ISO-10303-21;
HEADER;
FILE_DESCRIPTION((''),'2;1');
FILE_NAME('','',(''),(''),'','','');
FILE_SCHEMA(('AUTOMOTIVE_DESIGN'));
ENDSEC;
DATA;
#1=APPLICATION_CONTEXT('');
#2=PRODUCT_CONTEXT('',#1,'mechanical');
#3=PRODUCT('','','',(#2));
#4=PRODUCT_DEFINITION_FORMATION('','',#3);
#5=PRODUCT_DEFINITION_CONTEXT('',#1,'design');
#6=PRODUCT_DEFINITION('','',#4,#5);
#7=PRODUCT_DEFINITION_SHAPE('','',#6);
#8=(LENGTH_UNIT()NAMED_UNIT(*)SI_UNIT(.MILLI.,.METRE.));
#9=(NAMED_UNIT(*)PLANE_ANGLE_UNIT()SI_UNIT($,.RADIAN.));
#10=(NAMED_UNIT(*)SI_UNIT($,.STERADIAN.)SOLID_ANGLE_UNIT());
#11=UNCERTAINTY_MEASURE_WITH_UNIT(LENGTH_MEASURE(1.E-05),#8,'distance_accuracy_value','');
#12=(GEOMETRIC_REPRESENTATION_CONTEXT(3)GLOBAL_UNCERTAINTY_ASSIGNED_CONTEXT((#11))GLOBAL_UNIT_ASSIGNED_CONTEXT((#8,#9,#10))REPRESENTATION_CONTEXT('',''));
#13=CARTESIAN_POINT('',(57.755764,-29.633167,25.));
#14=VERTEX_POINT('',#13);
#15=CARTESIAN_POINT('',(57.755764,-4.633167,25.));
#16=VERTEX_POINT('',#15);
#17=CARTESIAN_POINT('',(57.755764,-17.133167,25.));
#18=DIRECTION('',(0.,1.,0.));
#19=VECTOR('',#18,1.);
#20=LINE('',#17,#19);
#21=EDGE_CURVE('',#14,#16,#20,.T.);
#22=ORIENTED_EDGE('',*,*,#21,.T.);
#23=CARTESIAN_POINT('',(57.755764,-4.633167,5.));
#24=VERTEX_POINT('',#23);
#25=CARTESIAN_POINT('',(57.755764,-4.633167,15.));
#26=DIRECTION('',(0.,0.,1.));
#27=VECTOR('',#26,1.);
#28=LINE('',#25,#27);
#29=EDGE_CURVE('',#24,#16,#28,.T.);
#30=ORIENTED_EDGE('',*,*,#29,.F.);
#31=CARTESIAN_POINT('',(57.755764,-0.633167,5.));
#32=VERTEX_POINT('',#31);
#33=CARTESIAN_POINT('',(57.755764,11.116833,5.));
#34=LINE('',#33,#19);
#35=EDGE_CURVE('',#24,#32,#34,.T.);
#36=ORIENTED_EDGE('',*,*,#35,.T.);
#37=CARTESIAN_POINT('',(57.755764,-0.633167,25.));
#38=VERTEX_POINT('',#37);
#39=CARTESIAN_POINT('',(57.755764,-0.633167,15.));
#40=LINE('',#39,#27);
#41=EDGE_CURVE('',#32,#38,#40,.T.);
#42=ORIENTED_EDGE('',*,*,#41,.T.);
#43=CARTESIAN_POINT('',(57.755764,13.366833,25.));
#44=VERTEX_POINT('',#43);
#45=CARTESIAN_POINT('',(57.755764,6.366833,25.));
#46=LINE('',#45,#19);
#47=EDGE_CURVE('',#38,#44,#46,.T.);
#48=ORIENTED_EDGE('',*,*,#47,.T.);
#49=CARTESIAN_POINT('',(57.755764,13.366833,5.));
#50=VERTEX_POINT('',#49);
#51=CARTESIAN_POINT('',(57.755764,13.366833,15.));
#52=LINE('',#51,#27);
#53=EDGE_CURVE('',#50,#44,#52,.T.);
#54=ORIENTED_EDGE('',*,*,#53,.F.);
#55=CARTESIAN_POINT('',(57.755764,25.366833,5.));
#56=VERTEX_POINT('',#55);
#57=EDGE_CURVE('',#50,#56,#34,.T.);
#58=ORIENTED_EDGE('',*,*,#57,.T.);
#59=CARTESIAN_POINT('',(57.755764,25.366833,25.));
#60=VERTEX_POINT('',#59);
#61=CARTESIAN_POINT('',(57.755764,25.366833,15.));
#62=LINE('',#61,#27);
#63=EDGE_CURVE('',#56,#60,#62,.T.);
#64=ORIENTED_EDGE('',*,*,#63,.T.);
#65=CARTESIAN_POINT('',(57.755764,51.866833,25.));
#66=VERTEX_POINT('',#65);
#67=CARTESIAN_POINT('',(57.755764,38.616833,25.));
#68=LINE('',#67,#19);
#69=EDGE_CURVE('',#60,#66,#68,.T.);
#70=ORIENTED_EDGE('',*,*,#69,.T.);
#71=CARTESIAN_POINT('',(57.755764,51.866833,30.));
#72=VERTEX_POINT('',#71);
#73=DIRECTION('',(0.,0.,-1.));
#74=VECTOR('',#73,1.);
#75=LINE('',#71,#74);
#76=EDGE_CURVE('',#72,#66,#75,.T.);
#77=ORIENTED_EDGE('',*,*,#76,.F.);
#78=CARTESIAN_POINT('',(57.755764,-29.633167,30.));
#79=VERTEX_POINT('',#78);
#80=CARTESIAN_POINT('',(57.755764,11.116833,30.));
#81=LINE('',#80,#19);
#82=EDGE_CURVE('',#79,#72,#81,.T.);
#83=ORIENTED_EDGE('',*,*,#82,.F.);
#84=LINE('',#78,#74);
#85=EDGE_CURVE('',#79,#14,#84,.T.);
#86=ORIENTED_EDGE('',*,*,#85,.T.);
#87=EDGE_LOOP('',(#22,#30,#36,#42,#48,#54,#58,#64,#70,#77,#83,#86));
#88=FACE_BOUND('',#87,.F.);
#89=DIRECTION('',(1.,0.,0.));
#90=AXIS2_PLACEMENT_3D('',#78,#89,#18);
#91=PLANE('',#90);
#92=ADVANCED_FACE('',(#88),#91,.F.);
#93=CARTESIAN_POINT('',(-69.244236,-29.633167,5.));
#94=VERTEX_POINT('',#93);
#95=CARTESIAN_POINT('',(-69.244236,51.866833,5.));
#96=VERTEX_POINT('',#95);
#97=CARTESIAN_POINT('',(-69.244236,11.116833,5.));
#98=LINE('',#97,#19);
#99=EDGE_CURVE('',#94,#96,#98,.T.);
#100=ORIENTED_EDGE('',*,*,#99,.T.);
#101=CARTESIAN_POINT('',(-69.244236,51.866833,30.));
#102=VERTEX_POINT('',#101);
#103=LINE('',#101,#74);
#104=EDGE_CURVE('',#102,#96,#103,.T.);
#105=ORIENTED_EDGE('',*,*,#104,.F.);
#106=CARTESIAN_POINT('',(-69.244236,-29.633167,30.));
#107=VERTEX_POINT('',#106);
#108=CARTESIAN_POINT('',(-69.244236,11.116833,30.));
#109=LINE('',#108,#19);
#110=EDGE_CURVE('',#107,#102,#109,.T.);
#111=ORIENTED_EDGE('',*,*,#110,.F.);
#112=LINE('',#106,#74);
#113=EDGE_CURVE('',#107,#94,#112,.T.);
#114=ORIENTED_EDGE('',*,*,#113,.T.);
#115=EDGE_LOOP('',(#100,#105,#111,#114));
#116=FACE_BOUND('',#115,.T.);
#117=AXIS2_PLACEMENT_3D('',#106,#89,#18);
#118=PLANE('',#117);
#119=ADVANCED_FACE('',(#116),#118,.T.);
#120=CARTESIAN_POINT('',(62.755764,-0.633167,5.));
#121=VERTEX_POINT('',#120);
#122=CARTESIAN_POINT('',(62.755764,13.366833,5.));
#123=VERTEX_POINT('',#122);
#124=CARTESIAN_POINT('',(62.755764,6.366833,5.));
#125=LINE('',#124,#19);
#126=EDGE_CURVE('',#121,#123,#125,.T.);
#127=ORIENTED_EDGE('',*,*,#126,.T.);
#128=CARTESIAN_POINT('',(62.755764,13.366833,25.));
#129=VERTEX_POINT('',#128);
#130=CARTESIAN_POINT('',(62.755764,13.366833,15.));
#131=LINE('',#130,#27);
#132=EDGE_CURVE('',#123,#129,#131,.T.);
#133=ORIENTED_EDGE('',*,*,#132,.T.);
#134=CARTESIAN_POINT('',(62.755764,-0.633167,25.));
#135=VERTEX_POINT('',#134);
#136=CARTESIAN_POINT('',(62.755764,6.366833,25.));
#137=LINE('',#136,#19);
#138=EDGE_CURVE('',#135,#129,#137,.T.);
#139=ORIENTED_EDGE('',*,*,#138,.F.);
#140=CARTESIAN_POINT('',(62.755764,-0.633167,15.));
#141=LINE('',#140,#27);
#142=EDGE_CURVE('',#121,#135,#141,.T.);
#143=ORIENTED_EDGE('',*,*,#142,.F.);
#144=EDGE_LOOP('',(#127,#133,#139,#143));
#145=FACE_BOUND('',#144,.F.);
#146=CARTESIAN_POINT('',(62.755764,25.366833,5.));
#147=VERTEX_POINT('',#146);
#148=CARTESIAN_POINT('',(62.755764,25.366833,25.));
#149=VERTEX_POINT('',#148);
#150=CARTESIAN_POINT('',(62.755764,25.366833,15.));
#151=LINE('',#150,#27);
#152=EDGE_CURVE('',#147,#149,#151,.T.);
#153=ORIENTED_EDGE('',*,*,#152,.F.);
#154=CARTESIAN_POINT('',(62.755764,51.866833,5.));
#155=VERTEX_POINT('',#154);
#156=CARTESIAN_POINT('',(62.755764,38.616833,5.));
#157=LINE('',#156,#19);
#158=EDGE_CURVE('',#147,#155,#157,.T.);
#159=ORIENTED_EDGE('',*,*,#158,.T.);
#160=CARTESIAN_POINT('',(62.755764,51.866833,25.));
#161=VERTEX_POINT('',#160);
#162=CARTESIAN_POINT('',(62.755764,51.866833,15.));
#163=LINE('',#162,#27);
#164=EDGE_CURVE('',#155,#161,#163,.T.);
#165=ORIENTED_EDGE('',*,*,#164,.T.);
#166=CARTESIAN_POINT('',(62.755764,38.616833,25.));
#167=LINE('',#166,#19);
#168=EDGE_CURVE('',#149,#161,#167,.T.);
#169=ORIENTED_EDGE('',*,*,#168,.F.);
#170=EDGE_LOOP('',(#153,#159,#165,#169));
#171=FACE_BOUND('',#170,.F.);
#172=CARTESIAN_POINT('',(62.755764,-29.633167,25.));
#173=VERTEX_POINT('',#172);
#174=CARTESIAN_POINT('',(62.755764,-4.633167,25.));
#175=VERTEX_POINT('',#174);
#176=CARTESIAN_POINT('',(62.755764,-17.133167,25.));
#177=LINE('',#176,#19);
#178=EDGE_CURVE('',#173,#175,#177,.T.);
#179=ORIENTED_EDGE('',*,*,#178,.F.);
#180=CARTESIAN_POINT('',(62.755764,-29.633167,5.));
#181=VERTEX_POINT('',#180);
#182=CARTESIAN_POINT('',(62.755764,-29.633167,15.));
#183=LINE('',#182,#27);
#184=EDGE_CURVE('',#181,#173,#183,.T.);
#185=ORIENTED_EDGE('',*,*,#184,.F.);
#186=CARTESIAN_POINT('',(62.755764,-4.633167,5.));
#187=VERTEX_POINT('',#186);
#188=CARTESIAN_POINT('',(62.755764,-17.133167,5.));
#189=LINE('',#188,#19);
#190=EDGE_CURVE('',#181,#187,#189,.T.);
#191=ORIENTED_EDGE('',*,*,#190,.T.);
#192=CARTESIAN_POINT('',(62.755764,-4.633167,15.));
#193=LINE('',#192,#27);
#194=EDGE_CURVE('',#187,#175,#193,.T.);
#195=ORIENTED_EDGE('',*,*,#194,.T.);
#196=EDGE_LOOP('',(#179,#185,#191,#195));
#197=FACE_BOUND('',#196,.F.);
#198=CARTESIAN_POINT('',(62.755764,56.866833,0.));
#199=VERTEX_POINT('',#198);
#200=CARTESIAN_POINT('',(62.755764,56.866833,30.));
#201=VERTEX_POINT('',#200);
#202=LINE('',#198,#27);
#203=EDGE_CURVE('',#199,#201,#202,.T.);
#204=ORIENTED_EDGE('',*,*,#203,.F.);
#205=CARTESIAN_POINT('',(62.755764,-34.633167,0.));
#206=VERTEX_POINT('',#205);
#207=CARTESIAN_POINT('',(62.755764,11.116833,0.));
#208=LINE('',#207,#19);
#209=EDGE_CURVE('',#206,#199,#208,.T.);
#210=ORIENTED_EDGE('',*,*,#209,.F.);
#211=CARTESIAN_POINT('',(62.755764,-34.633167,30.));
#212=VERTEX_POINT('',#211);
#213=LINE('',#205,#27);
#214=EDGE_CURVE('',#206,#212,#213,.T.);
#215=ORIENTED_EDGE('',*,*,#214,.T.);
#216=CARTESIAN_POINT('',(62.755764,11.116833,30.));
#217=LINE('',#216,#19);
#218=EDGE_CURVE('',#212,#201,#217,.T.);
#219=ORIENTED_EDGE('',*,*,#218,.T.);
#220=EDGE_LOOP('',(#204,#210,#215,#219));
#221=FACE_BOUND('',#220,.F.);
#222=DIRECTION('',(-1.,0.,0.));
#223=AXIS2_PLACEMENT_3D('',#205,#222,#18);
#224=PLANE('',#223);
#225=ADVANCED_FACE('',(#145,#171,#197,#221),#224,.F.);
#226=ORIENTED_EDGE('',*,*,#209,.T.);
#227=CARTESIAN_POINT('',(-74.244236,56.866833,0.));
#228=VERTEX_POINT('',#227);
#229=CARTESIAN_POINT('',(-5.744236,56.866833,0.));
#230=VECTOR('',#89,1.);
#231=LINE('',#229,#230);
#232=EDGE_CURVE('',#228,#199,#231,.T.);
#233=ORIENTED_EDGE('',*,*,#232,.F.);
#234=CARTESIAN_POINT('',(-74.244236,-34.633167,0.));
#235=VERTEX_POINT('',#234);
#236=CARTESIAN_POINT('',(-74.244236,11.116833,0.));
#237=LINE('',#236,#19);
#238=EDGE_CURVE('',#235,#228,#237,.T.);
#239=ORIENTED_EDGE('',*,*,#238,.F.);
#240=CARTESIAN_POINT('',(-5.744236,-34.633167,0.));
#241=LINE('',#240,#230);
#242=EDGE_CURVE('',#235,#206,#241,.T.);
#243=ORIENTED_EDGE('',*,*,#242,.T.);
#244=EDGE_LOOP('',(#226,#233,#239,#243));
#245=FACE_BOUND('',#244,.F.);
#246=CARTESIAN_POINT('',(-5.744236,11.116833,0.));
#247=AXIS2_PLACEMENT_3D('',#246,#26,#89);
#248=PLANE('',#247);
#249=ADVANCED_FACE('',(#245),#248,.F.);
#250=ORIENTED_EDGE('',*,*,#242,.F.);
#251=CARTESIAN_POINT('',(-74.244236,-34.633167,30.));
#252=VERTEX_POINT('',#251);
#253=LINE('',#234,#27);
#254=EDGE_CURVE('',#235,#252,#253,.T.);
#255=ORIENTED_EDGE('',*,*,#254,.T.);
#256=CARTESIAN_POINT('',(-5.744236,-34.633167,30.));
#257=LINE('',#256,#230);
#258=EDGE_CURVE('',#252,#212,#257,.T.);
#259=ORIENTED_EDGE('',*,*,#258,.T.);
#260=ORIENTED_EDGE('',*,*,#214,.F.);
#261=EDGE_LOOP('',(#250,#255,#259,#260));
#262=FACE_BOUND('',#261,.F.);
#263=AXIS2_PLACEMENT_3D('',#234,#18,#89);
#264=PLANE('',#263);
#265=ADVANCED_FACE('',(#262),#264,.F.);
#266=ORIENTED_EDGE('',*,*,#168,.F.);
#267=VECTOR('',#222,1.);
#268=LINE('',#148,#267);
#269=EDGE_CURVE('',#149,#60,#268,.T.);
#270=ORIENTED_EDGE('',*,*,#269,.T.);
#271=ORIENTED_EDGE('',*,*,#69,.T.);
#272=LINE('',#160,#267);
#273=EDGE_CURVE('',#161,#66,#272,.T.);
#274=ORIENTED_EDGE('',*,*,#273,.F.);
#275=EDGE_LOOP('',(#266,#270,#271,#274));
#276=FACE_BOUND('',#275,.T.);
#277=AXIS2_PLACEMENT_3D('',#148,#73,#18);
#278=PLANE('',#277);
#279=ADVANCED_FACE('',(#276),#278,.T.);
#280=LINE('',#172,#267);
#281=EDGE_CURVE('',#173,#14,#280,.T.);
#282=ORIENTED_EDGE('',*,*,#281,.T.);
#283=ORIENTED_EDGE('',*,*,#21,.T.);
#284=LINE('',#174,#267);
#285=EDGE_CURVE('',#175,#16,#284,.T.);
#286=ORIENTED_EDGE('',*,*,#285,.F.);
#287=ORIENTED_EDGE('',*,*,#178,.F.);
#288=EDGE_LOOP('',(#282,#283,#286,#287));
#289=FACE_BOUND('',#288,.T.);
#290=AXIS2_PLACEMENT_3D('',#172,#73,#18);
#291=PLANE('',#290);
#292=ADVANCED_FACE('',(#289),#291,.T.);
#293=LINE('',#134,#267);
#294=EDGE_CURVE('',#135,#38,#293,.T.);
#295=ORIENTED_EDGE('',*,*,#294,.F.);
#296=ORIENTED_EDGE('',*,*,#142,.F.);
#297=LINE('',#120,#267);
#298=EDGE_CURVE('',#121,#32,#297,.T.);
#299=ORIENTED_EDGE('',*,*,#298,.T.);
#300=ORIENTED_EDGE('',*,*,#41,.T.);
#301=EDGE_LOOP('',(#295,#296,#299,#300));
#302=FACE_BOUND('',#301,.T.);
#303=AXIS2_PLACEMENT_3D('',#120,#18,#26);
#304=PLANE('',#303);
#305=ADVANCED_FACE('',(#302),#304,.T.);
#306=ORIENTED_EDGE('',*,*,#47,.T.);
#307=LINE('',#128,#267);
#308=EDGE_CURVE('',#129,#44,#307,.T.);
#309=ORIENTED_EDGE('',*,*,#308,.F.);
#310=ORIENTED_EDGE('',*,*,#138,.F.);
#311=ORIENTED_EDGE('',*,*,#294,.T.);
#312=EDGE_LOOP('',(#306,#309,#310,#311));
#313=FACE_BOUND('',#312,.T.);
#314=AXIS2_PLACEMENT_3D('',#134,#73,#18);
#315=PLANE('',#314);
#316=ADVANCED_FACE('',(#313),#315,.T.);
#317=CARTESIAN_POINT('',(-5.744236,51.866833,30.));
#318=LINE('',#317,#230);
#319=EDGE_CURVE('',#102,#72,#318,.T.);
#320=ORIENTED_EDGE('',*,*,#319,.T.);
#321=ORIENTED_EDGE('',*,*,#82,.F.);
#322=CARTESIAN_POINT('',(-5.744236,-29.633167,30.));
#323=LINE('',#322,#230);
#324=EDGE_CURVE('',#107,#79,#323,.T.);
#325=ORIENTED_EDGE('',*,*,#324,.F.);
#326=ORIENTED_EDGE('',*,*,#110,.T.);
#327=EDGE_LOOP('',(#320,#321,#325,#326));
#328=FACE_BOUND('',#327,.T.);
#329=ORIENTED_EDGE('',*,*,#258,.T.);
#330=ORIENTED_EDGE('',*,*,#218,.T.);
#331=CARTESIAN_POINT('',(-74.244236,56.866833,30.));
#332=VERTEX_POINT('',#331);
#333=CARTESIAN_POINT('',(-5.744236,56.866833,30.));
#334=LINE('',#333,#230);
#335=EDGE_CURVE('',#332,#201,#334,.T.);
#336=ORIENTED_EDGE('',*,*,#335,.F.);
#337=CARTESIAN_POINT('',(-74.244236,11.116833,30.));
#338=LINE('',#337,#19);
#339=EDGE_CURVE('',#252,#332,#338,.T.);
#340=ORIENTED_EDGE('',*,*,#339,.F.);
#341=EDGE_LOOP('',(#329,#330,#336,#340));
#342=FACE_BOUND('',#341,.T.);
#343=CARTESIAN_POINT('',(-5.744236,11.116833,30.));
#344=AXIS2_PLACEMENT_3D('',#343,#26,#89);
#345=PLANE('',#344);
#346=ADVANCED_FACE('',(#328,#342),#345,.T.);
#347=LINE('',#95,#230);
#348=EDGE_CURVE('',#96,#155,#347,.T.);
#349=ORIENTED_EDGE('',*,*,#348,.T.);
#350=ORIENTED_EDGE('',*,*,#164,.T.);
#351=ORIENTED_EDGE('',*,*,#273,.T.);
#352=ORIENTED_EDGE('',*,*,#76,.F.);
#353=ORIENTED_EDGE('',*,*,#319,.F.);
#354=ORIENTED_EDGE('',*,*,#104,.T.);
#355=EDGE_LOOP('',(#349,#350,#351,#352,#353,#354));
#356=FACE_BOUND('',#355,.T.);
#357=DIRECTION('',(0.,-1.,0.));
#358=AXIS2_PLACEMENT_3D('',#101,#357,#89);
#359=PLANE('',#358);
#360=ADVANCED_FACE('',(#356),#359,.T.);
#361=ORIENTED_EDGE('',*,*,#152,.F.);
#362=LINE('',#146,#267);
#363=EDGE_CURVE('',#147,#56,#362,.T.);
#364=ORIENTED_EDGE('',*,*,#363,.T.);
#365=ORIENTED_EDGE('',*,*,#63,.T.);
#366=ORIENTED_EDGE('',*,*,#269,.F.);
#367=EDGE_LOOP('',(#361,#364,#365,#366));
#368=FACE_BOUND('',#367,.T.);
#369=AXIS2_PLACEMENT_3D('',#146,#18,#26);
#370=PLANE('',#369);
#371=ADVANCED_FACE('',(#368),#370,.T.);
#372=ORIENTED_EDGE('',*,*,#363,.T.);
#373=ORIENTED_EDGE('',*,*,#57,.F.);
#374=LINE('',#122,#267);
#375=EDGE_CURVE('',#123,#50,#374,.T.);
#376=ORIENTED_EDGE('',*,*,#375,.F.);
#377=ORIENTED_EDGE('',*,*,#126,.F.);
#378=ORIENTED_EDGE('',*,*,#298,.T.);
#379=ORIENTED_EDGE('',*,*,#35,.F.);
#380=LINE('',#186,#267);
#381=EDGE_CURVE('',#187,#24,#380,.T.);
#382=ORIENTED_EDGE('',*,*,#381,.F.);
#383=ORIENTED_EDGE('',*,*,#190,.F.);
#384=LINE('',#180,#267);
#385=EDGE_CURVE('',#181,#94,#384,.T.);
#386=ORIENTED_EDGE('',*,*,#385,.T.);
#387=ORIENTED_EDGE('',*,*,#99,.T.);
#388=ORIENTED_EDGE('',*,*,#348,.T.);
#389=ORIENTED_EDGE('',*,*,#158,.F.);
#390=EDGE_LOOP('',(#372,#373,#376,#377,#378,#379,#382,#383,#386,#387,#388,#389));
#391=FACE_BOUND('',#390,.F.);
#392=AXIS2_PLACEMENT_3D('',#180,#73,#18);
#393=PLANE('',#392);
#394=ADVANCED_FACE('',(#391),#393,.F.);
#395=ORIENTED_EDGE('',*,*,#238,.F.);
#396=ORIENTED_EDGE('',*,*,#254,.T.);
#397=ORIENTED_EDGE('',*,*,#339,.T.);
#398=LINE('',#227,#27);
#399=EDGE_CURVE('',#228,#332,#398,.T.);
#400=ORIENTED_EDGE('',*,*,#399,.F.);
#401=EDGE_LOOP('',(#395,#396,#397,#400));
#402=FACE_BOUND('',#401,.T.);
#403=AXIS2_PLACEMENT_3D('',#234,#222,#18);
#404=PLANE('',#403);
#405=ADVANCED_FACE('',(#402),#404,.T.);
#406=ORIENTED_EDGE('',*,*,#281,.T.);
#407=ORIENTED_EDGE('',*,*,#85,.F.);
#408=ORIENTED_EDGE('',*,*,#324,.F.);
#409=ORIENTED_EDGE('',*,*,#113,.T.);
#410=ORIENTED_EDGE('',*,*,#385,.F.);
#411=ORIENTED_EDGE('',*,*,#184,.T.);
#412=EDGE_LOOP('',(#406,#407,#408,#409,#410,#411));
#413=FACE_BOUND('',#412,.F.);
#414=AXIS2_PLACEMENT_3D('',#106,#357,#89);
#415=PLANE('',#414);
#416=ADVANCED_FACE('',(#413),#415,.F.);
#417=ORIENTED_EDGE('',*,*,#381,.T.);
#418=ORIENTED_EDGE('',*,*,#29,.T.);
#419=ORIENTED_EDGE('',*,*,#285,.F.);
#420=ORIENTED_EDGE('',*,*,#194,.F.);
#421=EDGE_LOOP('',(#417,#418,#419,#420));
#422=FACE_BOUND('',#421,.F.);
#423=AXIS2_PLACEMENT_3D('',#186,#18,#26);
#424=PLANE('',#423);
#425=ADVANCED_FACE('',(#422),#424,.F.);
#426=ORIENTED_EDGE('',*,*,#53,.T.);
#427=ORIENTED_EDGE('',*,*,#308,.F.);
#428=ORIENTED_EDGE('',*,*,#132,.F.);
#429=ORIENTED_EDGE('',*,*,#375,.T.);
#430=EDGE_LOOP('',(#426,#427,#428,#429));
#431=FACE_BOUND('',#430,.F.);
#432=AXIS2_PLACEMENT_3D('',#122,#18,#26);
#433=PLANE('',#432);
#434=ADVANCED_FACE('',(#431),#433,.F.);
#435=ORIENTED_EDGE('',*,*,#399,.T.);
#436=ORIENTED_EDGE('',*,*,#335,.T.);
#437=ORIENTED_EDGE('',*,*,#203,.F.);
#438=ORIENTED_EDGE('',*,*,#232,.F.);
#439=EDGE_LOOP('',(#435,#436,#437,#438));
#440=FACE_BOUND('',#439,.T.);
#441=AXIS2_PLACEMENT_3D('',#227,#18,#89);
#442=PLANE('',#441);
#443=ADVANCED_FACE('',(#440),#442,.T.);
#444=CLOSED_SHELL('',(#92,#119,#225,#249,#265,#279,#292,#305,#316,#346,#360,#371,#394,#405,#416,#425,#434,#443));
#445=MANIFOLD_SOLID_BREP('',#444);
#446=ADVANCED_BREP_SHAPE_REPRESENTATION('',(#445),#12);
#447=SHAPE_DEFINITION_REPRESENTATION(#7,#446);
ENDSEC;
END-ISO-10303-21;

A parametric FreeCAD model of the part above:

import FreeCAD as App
import Part
import Sketcher

V = App.Vector

doc = App.newDocument("Part")
body = doc.addObject("PartDesign::Body", "Body")

sketch1 = body.newObject("Sketcher::SketchObject", "Sketch")
sketch1.AttachmentSupport = (doc.getObject("XY_Plane"), [""])
sketch1.MapMode = "FlatFace"
sketch1.addGeometry([
    Part.LineSegment(V(-74, 57, 0), V(-74, -35, 0)),
    Part.LineSegment(V(-74, -35, 0), V(63, -35, 0)),
    Part.LineSegment(V(63, -35, 0), V(63, 57, 0)),
    Part.LineSegment(V(63, 57, 0), V(-74, 57, 0)),
], False)
sketch1.addConstraint([
    Sketcher.Constraint("Coincident", 0, 2, 1, 1),
    Sketcher.Constraint("Coincident", 1, 2, 2, 1),
    Sketcher.Constraint("Coincident", 2, 2, 3, 1),
    Sketcher.Constraint("Coincident", 3, 2, 0, 1),
    Sketcher.Constraint("Vertical", 0),
    Sketcher.Constraint("Horizontal", 1),
    Sketcher.Constraint("Vertical", 2),
    Sketcher.Constraint("Horizontal", 3),
    Sketcher.Constraint("DistanceX", 1, 1, 1, 2, 137.0),
    Sketcher.Constraint("DistanceY", 0, 2, 0, 1, 91.5),
    Sketcher.Constraint("DistanceX", 0, 2, -1, 1, 74.244236),
    Sketcher.Constraint("DistanceY", 0, 2, -1, 1, 34.633167),
])
pad1 = body.newObject("PartDesign::Pad", "Pad")
pad1.Profile = sketch1
pad1.Length = 30

sketch2 = body.newObject("Sketcher::SketchObject", "Sketch001")
sketch2.AttachmentSupport = (doc.getObject("XY_Plane"), [""])
sketch2.MapMode = "FlatFace"
sketch2.AttachmentOffset = App.Placement(V(0, 0, 30), App.Rotation())
sketch2.addGeometry([
    Part.LineSegment(V(-69, 52, 0), V(-69, -30, 0)),
    Part.LineSegment(V(-69, -30, 0), V(58, -30, 0)),
    Part.LineSegment(V(58, -30, 0), V(58, 52, 0)),
    Part.LineSegment(V(58, 52, 0), V(-69, 52, 0)),
], False)
sketch2.addConstraint([
    Sketcher.Constraint("Coincident", 0, 2, 1, 1),
    Sketcher.Constraint("Coincident", 1, 2, 2, 1),
    Sketcher.Constraint("Coincident", 2, 2, 3, 1),
    Sketcher.Constraint("Coincident", 3, 2, 0, 1),
    Sketcher.Constraint("Vertical", 0),
    Sketcher.Constraint("Horizontal", 1),
    Sketcher.Constraint("Vertical", 2),
    Sketcher.Constraint("Horizontal", 3),
    Sketcher.Constraint("DistanceX", 1, 1, 1, 2, 127.0),
    Sketcher.Constraint("DistanceY", 0, 2, 0, 1, 81.5),
    Sketcher.Constraint("DistanceX", 0, 2, -1, 1, 69.244236),
    Sketcher.Constraint("DistanceY", 0, 2, -1, 1, 29.633167),
])
pocket1 = body.newObject("PartDesign::Pocket", "Pocket")
pocket1.Profile = sketch2
pocket1.Length = 25

sketch3 = body.newObject("Sketcher::SketchObject", "Sketch002")
sketch3.AttachmentSupport = (doc.getObject("YZ_Plane"), [""])
sketch3.MapMode = "FlatFace"
sketch3.AttachmentOffset = App.Placement(V(0, 0, 62.755764), App.Rotation())
sketch3.addGeometry([
    Part.LineSegment(V(-30, 25, 0), V(-30, 5, 0)),
    Part.LineSegment(V(-30, 5, 0), V(-5, 5, 0)),
    Part.LineSegment(V(-5, 5, 0), V(-5, 25, 0)),
    Part.LineSegment(V(-5, 25, 0), V(-30, 25, 0)),
    Part.LineSegment(V(-1, 25, 0), V(-1, 5, 0)),
    Part.LineSegment(V(-1, 5, 0), V(13, 5, 0)),
    Part.LineSegment(V(13, 5, 0), V(13, 25, 0)),
    Part.LineSegment(V(13, 25, 0), V(-1, 25, 0)),
    Part.LineSegment(V(25, 25, 0), V(25, 5, 0)),
    Part.LineSegment(V(25, 5, 0), V(52, 5, 0)),
    Part.LineSegment(V(52, 5, 0), V(52, 25, 0)),
    Part.LineSegment(V(52, 25, 0), V(25, 25, 0)),
], False)
sketch3.addConstraint([
    Sketcher.Constraint("Coincident", 0, 2, 1, 1),
    Sketcher.Constraint("Coincident", 1, 2, 2, 1),
    Sketcher.Constraint("Coincident", 2, 2, 3, 1),
    Sketcher.Constraint("Coincident", 3, 2, 0, 1),
    Sketcher.Constraint("Coincident", 4, 2, 5, 1),
    Sketcher.Constraint("Coincident", 5, 2, 6, 1),
    Sketcher.Constraint("Coincident", 6, 2, 7, 1),
    Sketcher.Constraint("Coincident", 7, 2, 4, 1),
    Sketcher.Constraint("Coincident", 8, 2, 9, 1),
    Sketcher.Constraint("Coincident", 9, 2, 10, 1),
    Sketcher.Constraint("Coincident", 10, 2, 11, 1),
    Sketcher.Constraint("Coincident", 11, 2, 8, 1),
    Sketcher.Constraint("Vertical", 0),
    Sketcher.Constraint("Horizontal", 1),
    Sketcher.Constraint("Vertical", 2),
    Sketcher.Constraint("Horizontal", 3),
    Sketcher.Constraint("Vertical", 4),
    Sketcher.Constraint("Horizontal", 5),
    Sketcher.Constraint("Vertical", 6),
    Sketcher.Constraint("Horizontal", 7),
    Sketcher.Constraint("Vertical", 8),
    Sketcher.Constraint("Horizontal", 9),
    Sketcher.Constraint("Vertical", 10),
    Sketcher.Constraint("Horizontal", 11),
    Sketcher.Constraint("Horizontal", 1, 2, 4, 2),
    Sketcher.Constraint("Horizontal", 3, 2, 6, 2),
    Sketcher.Constraint("Horizontal", 5, 2, 8, 2),
    Sketcher.Constraint("Horizontal", 7, 2, 10, 2),
    Sketcher.Constraint("DistanceX", 1, 1, 1, 2, 25.0),
    Sketcher.Constraint("DistanceX", 5, 1, 5, 2, 14.0),
    Sketcher.Constraint("DistanceY", 0, 2, 0, 1, 20.0),
    Sketcher.Constraint("DistanceX", 9, 1, 9, 2, 26.5),
    Sketcher.Constraint("DistanceY", -1, 1, 0, 2, 5.0),
    Sketcher.Constraint("DistanceX", 1, 2, 4, 2, 4.0),
    Sketcher.Constraint("DistanceX", 5, 2, 8, 2, 12.0),
    Sketcher.Constraint("DistanceX", 0, 2, -1, 1, 29.633167),
])
pocket2 = body.newObject("PartDesign::Pocket", "Pocket001")
pocket2.Profile = sketch3
pocket2.Length = 5

doc.recompute()
